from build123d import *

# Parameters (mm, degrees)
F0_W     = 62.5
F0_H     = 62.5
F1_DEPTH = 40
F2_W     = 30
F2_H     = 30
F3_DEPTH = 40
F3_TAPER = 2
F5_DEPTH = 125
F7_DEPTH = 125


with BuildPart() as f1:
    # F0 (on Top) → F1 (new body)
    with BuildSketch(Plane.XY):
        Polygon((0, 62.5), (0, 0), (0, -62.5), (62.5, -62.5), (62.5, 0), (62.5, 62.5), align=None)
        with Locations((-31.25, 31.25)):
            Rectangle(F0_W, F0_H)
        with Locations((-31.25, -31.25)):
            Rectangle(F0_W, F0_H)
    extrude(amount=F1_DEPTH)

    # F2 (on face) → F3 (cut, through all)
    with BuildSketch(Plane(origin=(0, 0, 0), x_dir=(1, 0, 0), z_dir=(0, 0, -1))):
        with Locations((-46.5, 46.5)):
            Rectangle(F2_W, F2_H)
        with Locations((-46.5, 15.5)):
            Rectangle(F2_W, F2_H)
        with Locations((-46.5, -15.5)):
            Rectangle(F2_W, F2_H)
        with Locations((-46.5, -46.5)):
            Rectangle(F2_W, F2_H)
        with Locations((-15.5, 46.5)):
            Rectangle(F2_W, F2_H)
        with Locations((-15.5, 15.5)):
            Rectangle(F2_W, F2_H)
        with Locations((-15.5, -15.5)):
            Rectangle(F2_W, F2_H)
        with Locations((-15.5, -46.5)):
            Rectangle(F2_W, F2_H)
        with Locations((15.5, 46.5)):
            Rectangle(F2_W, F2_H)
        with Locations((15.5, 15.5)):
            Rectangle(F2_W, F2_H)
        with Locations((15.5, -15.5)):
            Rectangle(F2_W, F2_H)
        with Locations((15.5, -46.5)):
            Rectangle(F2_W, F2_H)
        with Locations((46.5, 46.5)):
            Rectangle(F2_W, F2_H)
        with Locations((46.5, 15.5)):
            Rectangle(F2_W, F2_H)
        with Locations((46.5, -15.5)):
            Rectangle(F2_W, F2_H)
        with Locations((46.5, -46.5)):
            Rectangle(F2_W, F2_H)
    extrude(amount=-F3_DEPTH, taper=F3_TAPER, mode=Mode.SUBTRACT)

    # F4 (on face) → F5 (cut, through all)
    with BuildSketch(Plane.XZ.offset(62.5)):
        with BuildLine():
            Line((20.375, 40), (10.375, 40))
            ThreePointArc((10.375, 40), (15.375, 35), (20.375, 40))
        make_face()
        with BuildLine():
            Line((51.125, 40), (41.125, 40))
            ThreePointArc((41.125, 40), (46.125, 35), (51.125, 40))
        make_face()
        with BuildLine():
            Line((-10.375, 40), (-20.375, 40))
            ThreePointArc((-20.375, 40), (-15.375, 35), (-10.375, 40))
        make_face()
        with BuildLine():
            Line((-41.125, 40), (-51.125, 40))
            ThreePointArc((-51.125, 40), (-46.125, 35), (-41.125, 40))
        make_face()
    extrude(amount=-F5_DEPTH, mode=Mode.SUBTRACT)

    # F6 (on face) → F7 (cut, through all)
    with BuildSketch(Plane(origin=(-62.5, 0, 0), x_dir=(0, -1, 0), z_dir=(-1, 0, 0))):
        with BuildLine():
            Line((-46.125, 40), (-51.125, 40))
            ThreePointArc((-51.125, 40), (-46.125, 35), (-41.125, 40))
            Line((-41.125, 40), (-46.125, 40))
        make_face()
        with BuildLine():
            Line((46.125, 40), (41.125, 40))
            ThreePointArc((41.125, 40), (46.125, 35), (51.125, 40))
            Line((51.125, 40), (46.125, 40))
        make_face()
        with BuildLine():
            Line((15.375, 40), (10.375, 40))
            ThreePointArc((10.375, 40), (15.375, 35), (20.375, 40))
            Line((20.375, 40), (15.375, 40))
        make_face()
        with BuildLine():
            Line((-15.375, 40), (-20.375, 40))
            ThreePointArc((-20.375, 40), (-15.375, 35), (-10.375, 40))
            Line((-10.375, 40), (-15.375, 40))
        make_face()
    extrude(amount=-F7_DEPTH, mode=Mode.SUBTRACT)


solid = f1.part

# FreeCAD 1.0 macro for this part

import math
import FreeCAD as App
import Part
import Sketcher
from FreeCAD import Vector
Q = App.Units.Quantity

doc = App.newDocument("Part")
body = doc.addObject("PartDesign::Body", "Body")

sketch1 = body.newObject("Sketcher::SketchObject", "Sketch")
sketch1.AttachmentSupport = (doc.getObject("XY_Plane"), [""])
sketch1.MapMode = "FlatFace"
sketch1.addGeometry([
    Part.LineSegment(Vector(62.5, -62.5, 0), Vector(62.5, 62.5, 0)),
    Part.LineSegment(Vector(62.5, 62.5, 0), Vector(-62.5, 62.5, 0)),
    Part.LineSegment(Vector(-62.5, 62.5, 0), Vector(-62.5, -62.5, 0)),
    Part.LineSegment(Vector(-62.5, -62.5, 0), Vector(62.5, -62.5, 0)),
], False)
sketch1.addConstraint([
    Sketcher.Constraint("Coincident", 0, 2, 1, 1),
    Sketcher.Constraint("Coincident", 1, 2, 2, 1),
    Sketcher.Constraint("Coincident", 2, 2, 3, 1),
    Sketcher.Constraint("Coincident", 3, 2, 0, 1),
    Sketcher.Constraint("Vertical", 0),
    Sketcher.Constraint("Horizontal", 1),
    Sketcher.Constraint("Vertical", 2),
    Sketcher.Constraint("Horizontal", 3),
    Sketcher.Constraint("Symmetric", 0, 2, 2, 2, -1, 1),
    Sketcher.Constraint("Equal", 3, 0),
    Sketcher.Constraint("DistanceX", 1, 2, 1, 1, Q("125 mm")),
])
pad1 = body.newObject("PartDesign::Pad", "Pad")
pad1.Profile = sketch1
pad1.Length = 40

sketch2 = body.newObject("Sketcher::SketchObject", "Sketch001")
sketch2.AttachmentSupport = (doc.getObject("XY_Plane"), [""])
sketch2.MapMode = "FlatFace"
sketch2.addGeometry([
    Part.LineSegment(Vector(-61.5, -61.5, 0), Vector(-61.5, -31.5, 0)),
    Part.LineSegment(Vector(-61.5, -31.5, 0), Vector(-31.5, -31.5, 0)),
    Part.LineSegment(Vector(-31.5, -31.5, 0), Vector(-31.5, -61.5, 0)),
    Part.LineSegment(Vector(-31.5, -61.5, 0), Vector(-61.5, -61.5, 0)),
    Part.LineSegment(Vector(-61.5, -30.5, 0), Vector(-61.5, -0.5, 0)),
    Part.LineSegment(Vector(-61.5, -0.5, 0), Vector(-31.5, -0.5, 0)),
    Part.LineSegment(Vector(-31.5, -0.5, 0), Vector(-31.5, -30.5, 0)),
    Part.LineSegment(Vector(-31.5, -30.5, 0), Vector(-61.5, -30.5, 0)),
    Part.LineSegment(Vector(-61.5, 0.5, 0), Vector(-61.5, 30.5, 0)),
    Part.LineSegment(Vector(-61.5, 30.5, 0), Vector(-31.5, 30.5, 0)),
    Part.LineSegment(Vector(-31.5, 30.5, 0), Vector(-31.5, 0.5, 0)),
    Part.LineSegment(Vector(-31.5, 0.5, 0), Vector(-61.5, 0.5, 0)),
    Part.LineSegment(Vector(-61.5, 31.5, 0), Vector(-61.5, 61.5, 0)),
    Part.LineSegment(Vector(-61.5, 61.5, 0), Vector(-31.5, 61.5, 0)),
    Part.LineSegment(Vector(-31.5, 61.5, 0), Vector(-31.5, 31.5, 0)),
    Part.LineSegment(Vector(-31.5, 31.5, 0), Vector(-61.5, 31.5, 0)),
    Part.LineSegment(Vector(-30.5, -61.5, 0), Vector(-30.5, -31.5, 0)),
    Part.LineSegment(Vector(-30.5, -31.5, 0), Vector(-0.5, -31.5, 0)),
    Part.LineSegment(Vector(-0.5, -31.5, 0), Vector(-0.5, -61.5, 0)),
    Part.LineSegment(Vector(-0.5, -61.5, 0), Vector(-30.5, -61.5, 0)),
    Part.LineSegment(Vector(-30.5, -30.5, 0), Vector(-30.5, -0.5, 0)),
    Part.LineSegment(Vector(-30.5, -0.5, 0), Vector(-0.5, -0.5, 0)),
    Part.LineSegment(Vector(-0.5, -0.5, 0), Vector(-0.5, -30.5, 0)),
    Part.LineSegment(Vector(-0.5, -30.5, 0), Vector(-30.5, -30.5, 0)),
    Part.LineSegment(Vector(-30.5, 0.5, 0), Vector(-30.5, 30.5, 0)),
    Part.LineSegment(Vector(-30.5, 30.5, 0), Vector(-0.5, 30.5, 0)),
    Part.LineSegment(Vector(-0.5, 30.5, 0), Vector(-0.5, 0.5, 0)),
    Part.LineSegment(Vector(-0.5, 0.5, 0), Vector(-30.5, 0.5, 0)),
    Part.LineSegment(Vector(-30.5, 31.5, 0), Vector(-30.5, 61.5, 0)),
    Part.LineSegment(Vector(-30.5, 61.5, 0), Vector(-0.5, 61.5, 0)),
    Part.LineSegment(Vector(-0.5, 61.5, 0), Vector(-0.5, 31.5, 0)),
    Part.LineSegment(Vector(-0.5, 31.5, 0), Vector(-30.5, 31.5, 0)),
    Part.LineSegment(Vector(0.5, -61.5, 0), Vector(0.5, -31.5, 0)),
    Part.LineSegment(Vector(0.5, -31.5, 0), Vector(30.5, -31.5, 0)),
    Part.LineSegment(Vector(30.5, -31.5, 0), Vector(30.5, -61.5, 0)),
    Part.LineSegment(Vector(30.5, -61.5, 0), Vector(0.5, -61.5, 0)),
    Part.LineSegment(Vector(0.5, -30.5, 0), Vector(0.5, -0.5, 0)),
    Part.LineSegment(Vector(0.5, -0.5, 0), Vector(30.5, -0.5, 0)),
    Part.LineSegment(Vector(30.5, -0.5, 0), Vector(30.5, -30.5, 0)),
    Part.LineSegment(Vector(30.5, -30.5, 0), Vector(0.5, -30.5, 0)),
    Part.LineSegment(Vector(0.5, 0.5, 0), Vector(0.5, 30.5, 0)),
    Part.LineSegment(Vector(0.5, 30.5, 0), Vector(30.5, 30.5, 0)),
    Part.LineSegment(Vector(30.5, 30.5, 0), Vector(30.5, 0.5, 0)),
    Part.LineSegment(Vector(30.5, 0.5, 0), Vector(0.5, 0.5, 0)),
    Part.LineSegment(Vector(0.5, 31.5, 0), Vector(0.5, 61.5, 0)),
    Part.LineSegment(Vector(0.5, 61.5, 0), Vector(30.5, 61.5, 0)),
    Part.LineSegment(Vector(30.5, 61.5, 0), Vector(30.5, 31.5, 0)),
    Part.LineSegment(Vector(30.5, 31.5, 0), Vector(0.5, 31.5, 0)),
    Part.LineSegment(Vector(31.5, -61.5, 0), Vector(31.5, -31.5, 0)),
    Part.LineSegment(Vector(31.5, -31.5, 0), Vector(61.5, -31.5, 0)),
    Part.LineSegment(Vector(61.5, -31.5, 0), Vector(61.5, -61.5, 0)),
    Part.LineSegment(Vector(61.5, -61.5, 0), Vector(31.5, -61.5, 0)),
    Part.LineSegment(Vector(31.5, -30.5, 0), Vector(31.5, -0.5, 0)),
    Part.LineSegment(Vector(31.5, -0.5, 0), Vector(61.5, -0.5, 0)),
    Part.LineSegment(Vector(61.5, -0.5, 0), Vector(61.5, -30.5, 0)),
    Part.LineSegment(Vector(61.5, -30.5, 0), Vector(31.5, -30.5, 0)),
    Part.LineSegment(Vector(31.5, 0.5, 0), Vector(31.5, 30.5, 0)),
    Part.LineSegment(Vector(31.5, 30.5, 0), Vector(61.5, 30.5, 0)),
    Part.LineSegment(Vector(61.5, 30.5, 0), Vector(61.5, 0.5, 0)),
    Part.LineSegment(Vector(61.5, 0.5, 0), Vector(31.5, 0.5, 0)),
    Part.LineSegment(Vector(31.5, 31.5, 0), Vector(31.5, 61.5, 0)),
    Part.LineSegment(Vector(31.5, 61.5, 0), Vector(61.5, 61.5, 0)),
    Part.LineSegment(Vector(61.5, 61.5, 0), Vector(61.5, 31.5, 0)),
    Part.LineSegment(Vector(61.5, 31.5, 0), Vector(31.5, 31.5, 0)),
], False)
sketch2.addConstraint([
    Sketcher.Constraint("Coincident", 0, 2, 1, 1),
    Sketcher.Constraint("Coincident", 1, 2, 2, 1),
    Sketcher.Constraint("Coincident", 2, 2, 3, 1),
    Sketcher.Constraint("Coincident", 3, 2, 0, 1),
    Sketcher.Constraint("Coincident", 4, 2, 5, 1),
    Sketcher.Constraint("Coincident", 5, 2, 6, 1),
    Sketcher.Constraint("Coincident", 6, 2, 7, 1),
    Sketcher.Constraint("Coincident", 7, 2, 4, 1),
    Sketcher.Constraint("Coincident", 8, 2, 9, 1),
    Sketcher.Constraint("Coincident", 9, 2, 10, 1),
    Sketcher.Constraint("Coincident", 10, 2, 11, 1),
    Sketcher.Constraint("Coincident", 11, 2, 8, 1),
    Sketcher.Constraint("Coincident", 12, 2, 13, 1),
    Sketcher.Constraint("Coincident", 13, 2, 14, 1),
    Sketcher.Constraint("Coincident", 14, 2, 15, 1),
    Sketcher.Constraint("Coincident", 15, 2, 12, 1),
    Sketcher.Constraint("Coincident", 16, 2, 17, 1),
    Sketcher.Constraint("Coincident", 17, 2, 18, 1),
    Sketcher.Constraint("Coincident", 18, 2, 19, 1),
    Sketcher.Constraint("Coincident", 19, 2, 16, 1),
    Sketcher.Constraint("Coincident", 20, 2, 21, 1),
    Sketcher.Constraint("Coincident", 21, 2, 22, 1),
    Sketcher.Constraint("Coincident", 22, 2, 23, 1),
    Sketcher.Constraint("Coincident", 23, 2, 20, 1),
    Sketcher.Constraint("Coincident", 24, 2, 25, 1),
    Sketcher.Constraint("Coincident", 25, 2, 26, 1),
    Sketcher.Constraint("Coincident", 26, 2, 27, 1),
    Sketcher.Constraint("Coincident", 27, 2, 24, 1),
    Sketcher.Constraint("Coincident", 28, 2, 29, 1),
    Sketcher.Constraint("Coincident", 29, 2, 30, 1),
    Sketcher.Constraint("Coincident", 30, 2, 31, 1),
    Sketcher.Constraint("Coincident", 31, 2, 28, 1),
    Sketcher.Constraint("Coincident", 32, 2, 33, 1),
    Sketcher.Constraint("Coincident", 33, 2, 34, 1),
    Sketcher.Constraint("Coincident", 34, 2, 35, 1),
    Sketcher.Constraint("Coincident", 35, 2, 32, 1),
    Sketcher.Constraint("Coincident", 36, 2, 37, 1),
    Sketcher.Constraint("Coincident", 37, 2, 38, 1),
    Sketcher.Constraint("Coincident", 38, 2, 39, 1),
    Sketcher.Constraint("Coincident", 39, 2, 36, 1),
    Sketcher.Constraint("Coincident", 40, 2, 41, 1),
    Sketcher.Constraint("Coincident", 41, 2, 42, 1),
    Sketcher.Constraint("Coincident", 42, 2, 43, 1),
    Sketcher.Constraint("Coincident", 43, 2, 40, 1),
    Sketcher.Constraint("Coincident", 44, 2, 45, 1),
    Sketcher.Constraint("Coincident", 45, 2, 46, 1),
    Sketcher.Constraint("Coincident", 46, 2, 47, 1),
    Sketcher.Constraint("Coincident", 47, 2, 44, 1),
    Sketcher.Constraint("Coincident", 48, 2, 49, 1),
    Sketcher.Constraint("Coincident", 49, 2, 50, 1),
    Sketcher.Constraint("Coincident", 50, 2, 51, 1),
    Sketcher.Constraint("Coincident", 51, 2, 48, 1),
    Sketcher.Constraint("Coincident", 52, 2, 53, 1),
    Sketcher.Constraint("Coincident", 53, 2, 54, 1),
    Sketcher.Constraint("Coincident", 54, 2, 55, 1),
    Sketcher.Constraint("Coincident", 55, 2, 52, 1),
    Sketcher.Constraint("Coincident", 56, 2, 57, 1),
    Sketcher.Constraint("Coincident", 57, 2, 58, 1),
    Sketcher.Constraint("Coincident", 58, 2, 59, 1),
    Sketcher.Constraint("Coincident", 59, 2, 56, 1),
    Sketcher.Constraint("Coincident", 60, 2, 61, 1),
    Sketcher.Constraint("Coincident", 61, 2, 62, 1),
    Sketcher.Constraint("Coincident", 62, 2, 63, 1),
    Sketcher.Constraint("Coincident", 63, 2, 60, 1),
    Sketcher.Constraint("Vertical", 0),
    Sketcher.Constraint("Horizontal", 1),
    Sketcher.Constraint("Vertical", 2),
    Sketcher.Constraint("Horizontal", 3),
    Sketcher.Constraint("Vertical", 4),
    Sketcher.Constraint("Horizontal", 5),
    Sketcher.Constraint("Vertical", 6),
    Sketcher.Constraint("Horizontal", 7),
    Sketcher.Constraint("Vertical", 8),
    Sketcher.Constraint("Horizontal", 9),
    Sketcher.Constraint("Vertical", 10),
    Sketcher.Constraint("Horizontal", 11),
    Sketcher.Constraint("Vertical", 12),
    Sketcher.Constraint("Horizontal", 13),
    Sketcher.Constraint("Vertical", 14),
    Sketcher.Constraint("Horizontal", 15),
    Sketcher.Constraint("Vertical", 16),
    Sketcher.Constraint("Horizontal", 17),
    Sketcher.Constraint("Vertical", 18),
    Sketcher.Constraint("Horizontal", 19),
    Sketcher.Constraint("Vertical", 20),
    Sketcher.Constraint("Horizontal", 21),
    Sketcher.Constraint("Vertical", 22),
    Sketcher.Constraint("Horizontal", 23),
    Sketcher.Constraint("Vertical", 24),
    Sketcher.Constraint("Horizontal", 25),
    Sketcher.Constraint("Vertical", 26),
    Sketcher.Constraint("Horizontal", 27),
    Sketcher.Constraint("Vertical", 28),
    Sketcher.Constraint("Horizontal", 29),
    Sketcher.Constraint("Vertical", 30),
    Sketcher.Constraint("Horizontal", 31),
    Sketcher.Constraint("Vertical", 32),
    Sketcher.Constraint("Horizontal", 33),
    Sketcher.Constraint("Vertical", 34),
    Sketcher.Constraint("Horizontal", 35),
    Sketcher.Constraint("Vertical", 36),
    Sketcher.Constraint("Horizontal", 37),
    Sketcher.Constraint("Vertical", 38),
    Sketcher.Constraint("Horizontal", 39),
    Sketcher.Constraint("Vertical", 40),
    Sketcher.Constraint("Horizontal", 41),
    Sketcher.Constraint("Vertical", 42),
    Sketcher.Constraint("Horizontal", 43),
    Sketcher.Constraint("Vertical", 44),
    Sketcher.Constraint("Horizontal", 45),
    Sketcher.Constraint("Vertical", 46),
    Sketcher.Constraint("Horizontal", 47),
    Sketcher.Constraint("Vertical", 48),
    Sketcher.Constraint("Horizontal", 49),
    Sketcher.Constraint("Vertical", 50),
    Sketcher.Constraint("Horizontal", 51),
    Sketcher.Constraint("Vertical", 52),
    Sketcher.Constraint("Horizontal", 53),
    Sketcher.Constraint("Vertical", 54),
    Sketcher.Constraint("Horizontal", 55),
    Sketcher.Constraint("Vertical", 56),
    Sketcher.Constraint("Horizontal", 57),
    Sketcher.Constraint("Vertical", 58),
    Sketcher.Constraint("Horizontal", 59),
    Sketcher.Constraint("Vertical", 60),
    Sketcher.Constraint("Horizontal", 61),
    Sketcher.Constraint("Vertical", 62),
    Sketcher.Constraint("Horizontal", 63),
    Sketcher.Constraint("Symmetric", 30, 2, 32, 2, -1, 1),
    Sketcher.Constraint("Symmetric", 28, 2, 34, 2, -1, 1),
    Sketcher.Constraint("Symmetric", 26, 2, 36, 2, -1, 1),
    Sketcher.Constraint("Symmetric", 24, 2, 38, 2, -1, 1),
    Sketcher.Constraint("Symmetric", 22, 2, 40, 2, -1, 1),
    Sketcher.Constraint("Symmetric", 20, 2, 42, 2, -1, 1),
    Sketcher.Constraint("Symmetric", 18, 2, 44, 2, -1, 1),
    Sketcher.Constraint("Symmetric", 16, 2, 46, 2, -1, 1),
    Sketcher.Constraint("Symmetric", 14, 2, 48, 2, -1, 1),
    Sketcher.Constraint("Symmetric", 12, 2, 50, 2, -1, 1),
    Sketcher.Constraint("Symmetric", 10, 2, 52, 2, -1, 1),
    Sketcher.Constraint("Symmetric", 8, 2, 54, 2, -1, 1),
    Sketcher.Constraint("Symmetric", 6, 2, 56, 2, -1, 1),
    Sketcher.Constraint("Symmetric", 4, 2, 58, 2, -1, 1),
    Sketcher.Constraint("Symmetric", 2, 2, 60, 2, -1, 1),
    Sketcher.Constraint("Symmetric", 0, 2, 62, 2, -1, 1),
    Sketcher.Constraint("Symmetric", 17, 2, 32, 2, -2),
    Sketcher.Constraint("Symmetric", 19, 2, 34, 2, -2),
    Sketcher.Constraint("Symmetric", 21, 2, 36, 2, -2),
    Sketcher.Constraint("Symmetric", 23, 2, 38, 2, -2),
    Sketcher.Constraint("Symmetric", 1, 2, 48, 2, -2),
    Sketcher.Constraint("Symmetric", 3, 2, 50, 2, -2),
    Sketcher.Constraint("Symmetric", 5, 2, 52, 2, -2),
    Sketcher.Constraint("Symmetric", 7, 2, 54, 2, -2),
    Sketcher.Constraint("Horizontal", 1, 2, 16, 2),
    Sketcher.Constraint("Horizontal", 3, 2, 18, 2),
    Sketcher.Constraint("Horizontal", 5, 2, 20, 2),
    Sketcher.Constraint("Horizontal", 7, 2, 22, 2),
    Sketcher.Constraint("Vertical", 3, 2, 4, 2),
    Sketcher.Constraint("Vertical", 2, 2, 5, 2),
    Sketcher.Constraint("Vertical", 19, 2, 20, 2),
    Sketcher.Constraint("Vertical", 18, 2, 21, 2),
    Sketcher.Constraint("Equal", 15, 17),
    Sketcher.Constraint("Equal", 63, 0),
    Sketcher.Constraint("Equal", 2, 4),
    Sketcher.Constraint("DistanceX", 1, 1, 1, 2, Q("30 mm")),
    Sketcher.Constraint("DistanceX", 0, 2, -1, 1, Q("61.5 mm")),
    Sketcher.Constraint("DistanceY", 0, 2, -1, 1, Q("31.5 mm")),
    Sketcher.Constraint("DistanceY", 4, 2, -1, 1, Q("0.5 mm")),
    Sketcher.Constraint("DistanceX", 16, 2, -1, 1, Q("30.5 mm")),
])
pocket1 = body.newObject("PartDesign::Pocket", "Pocket")
pocket1.Profile = sketch2
pocket1.Length = 40
pocket1.Reversed = True
pocket1.TaperAngle = -2

sketch3 = body.newObject("Sketcher::SketchObject", "Sketch002")
sketch3.AttachmentSupport = (doc.getObject("XZ_Plane"), [""])
sketch3.MapMode = "FlatFace"
sketch3.AttachmentOffset = App.Placement(Vector(0, 0, 62.5), App.Rotation())
sketch3.addGeometry([
    Part.LineSegment(Vector(20.375, 40, 0), Vector(10.375, 40, 0)),
    Part.ArcOfCircle(Part.Circle(Vector(15.375, 40, 0), Vector(0, 0, 1), 5), math.radians(180), math.radians(360)),
    Part.LineSegment(Vector(51.125, 40, 0), Vector(41.125, 40, 0)),
    Part.ArcOfCircle(Part.Circle(Vector(46.125, 40, 0), Vector(0, 0, 1), 5), math.radians(180), math.radians(360)),
    Part.LineSegment(Vector(-10.375, 40, 0), Vector(-20.375, 40, 0)),
    Part.ArcOfCircle(Part.Circle(Vector(-15.375, 40, 0), Vector(0, 0, 1), 5), math.radians(180), math.radians(360)),
    Part.LineSegment(Vector(-41.125, 40, 0), Vector(-51.125, 40, 0)),
    Part.ArcOfCircle(Part.Circle(Vector(-46.125, 40, 0), Vector(0, 0, 1), 5), math.radians(180), math.radians(360)),
], False)
sketch3.addConstraint([
    Sketcher.Constraint("Coincident", 0, 1, 1, 2),
    Sketcher.Constraint("Coincident", 1, 1, 0, 2),
    Sketcher.Constraint("Coincident", 2, 1, 3, 2),
    Sketcher.Constraint("Coincident", 3, 1, 2, 2),
    Sketcher.Constraint("Coincident", 4, 1, 5, 2),
    Sketcher.Constraint("Coincident", 5, 1, 4, 2),
    Sketcher.Constraint("Coincident", 6, 1, 7, 2),
    Sketcher.Constraint("Coincident", 7, 1, 6, 2),
    Sketcher.Constraint("Horizontal", 0),
    Sketcher.Constraint("Horizontal", 2),
    Sketcher.Constraint("Horizontal", 4),
    Sketcher.Constraint("Horizontal", 6),
    Sketcher.Constraint("Equal", 1, 3),
    Sketcher.Constraint("Equal", 3, 5),
    Sketcher.Constraint("Equal", 5, 7),
    Sketcher.Constraint("Symmetric", 1, 3, 5, 3, -2),
    Sketcher.Constraint("Symmetric", 3, 3, 7, 3, -2),
    Sketcher.Constraint("Horizontal", 1, 3, 3, 3),
    Sketcher.Constraint("Horizontal", 7, 3, 0, 1),
    Sketcher.Constraint("Horizontal", 1, 1, 2, 1),
    Sketcher.Constraint("Horizontal", 3, 1, 4, 1),
    Sketcher.Constraint("Horizontal", 5, 1, 6, 1),
    Sketcher.Constraint("Radius", 1, Q("5 mm")),
    Sketcher.Constraint("DistanceY", -1, 1, 1, 3, Q("40 mm")),
    Sketcher.Constraint("DistanceX", 5, 3, 3, 3, Q("61.5 mm")),
    Sketcher.Constraint("DistanceX", 1, 3, 3, 3, Q("30.75 mm")),
])
pocket2 = body.newObject("PartDesign::Pocket", "Pocket001")
pocket2.Profile = sketch3
pocket2.Type = "ThroughAll"

sketch4 = body.newObject("Sketcher::SketchObject", "Sketch003")
sketch4.AttachmentSupport = (doc.getObject("YZ_Plane"), [""])
sketch4.MapMode = "FlatFace"
sketch4.AttachmentOffset = App.Placement(Vector(0, 0, -62.5), App.Rotation())
sketch4.addGeometry([
    Part.ArcOfCircle(Part.Circle(Vector(46.125, 40, 0), Vector(0, 0, 1), 5), math.radians(180), math.radians(360)),
    Part.LineSegment(Vector(41.125, 40, 0), Vector(51.125, 40, 0)),
    Part.ArcOfCircle(Part.Circle(Vector(-46.125, 40, 0), Vector(0, 0, 1), 5), math.radians(180), math.radians(360)),
    Part.LineSegment(Vector(-51.125, 40, 0), Vector(-41.125, 40, 0)),
    Part.ArcOfCircle(Part.Circle(Vector(-15.375, 40, 0), Vector(0, 0, 1), 5), math.radians(180), math.radians(360)),
    Part.LineSegment(Vector(-20.375, 40, 0), Vector(-10.375, 40, 0)),
    Part.ArcOfCircle(Part.Circle(Vector(15.375, 40, 0), Vector(0, 0, 1), 5), math.radians(180), math.radians(360)),
    Part.LineSegment(Vector(10.375, 40, 0), Vector(20.375, 40, 0)),
], False)
sketch4.addConstraint([
    Sketcher.Constraint("Coincident", 0, 1, 1, 1),
    Sketcher.Constraint("Coincident", 1, 2, 0, 2),
    Sketcher.Constraint("Coincident", 2, 1, 3, 1),
    Sketcher.Constraint("Coincident", 3, 2, 2, 2),
    Sketcher.Constraint("Coincident", 4, 1, 5, 1),
    Sketcher.Constraint("Coincident", 5, 2, 4, 2),
    Sketcher.Constraint("Coincident", 6, 1, 7, 1),
    Sketcher.Constraint("Coincident", 7, 2, 6, 2),
    Sketcher.Constraint("Horizontal", 1),
    Sketcher.Constraint("Horizontal", 3),
    Sketcher.Constraint("Horizontal", 5),
    Sketcher.Constraint("Horizontal", 7),
    Sketcher.Constraint("Equal", 0, 2),
    Sketcher.Constraint("Equal", 2, 4),
    Sketcher.Constraint("Equal", 4, 6),
    Sketcher.Constraint("Symmetric", 0, 3, 2, 3, -2),
    Sketcher.Constraint("Symmetric", 4, 3, 6, 3, -2),
    Sketcher.Constraint("Horizontal", 2, 3, 4, 3),
    Sketcher.Constraint("Horizontal", 6, 3, 0, 1),
    Sketcher.Constraint("Horizontal", 1, 2, 2, 1),
    Sketcher.Constraint("Horizontal", 3, 2, 4, 1),
    Sketcher.Constraint("Horizontal", 5, 2, 6, 1),
    Sketcher.Constraint("Radius", 0, Q("5 mm")),
    Sketcher.Constraint("DistanceY", -1, 1, 0, 3, Q("40 mm")),
    Sketcher.Constraint("DistanceX", 4, 3, 0, 3, Q("61.5 mm")),
    Sketcher.Constraint("DistanceX", 2, 3, 0, 3, Q("92.25 mm")),
])
pocket3 = body.newObject("PartDesign::Pocket", "Pocket002")
pocket3.Profile = sketch4
pocket3.Type = "ThroughAll"
pocket3.Reversed = True

doc.recompute()
